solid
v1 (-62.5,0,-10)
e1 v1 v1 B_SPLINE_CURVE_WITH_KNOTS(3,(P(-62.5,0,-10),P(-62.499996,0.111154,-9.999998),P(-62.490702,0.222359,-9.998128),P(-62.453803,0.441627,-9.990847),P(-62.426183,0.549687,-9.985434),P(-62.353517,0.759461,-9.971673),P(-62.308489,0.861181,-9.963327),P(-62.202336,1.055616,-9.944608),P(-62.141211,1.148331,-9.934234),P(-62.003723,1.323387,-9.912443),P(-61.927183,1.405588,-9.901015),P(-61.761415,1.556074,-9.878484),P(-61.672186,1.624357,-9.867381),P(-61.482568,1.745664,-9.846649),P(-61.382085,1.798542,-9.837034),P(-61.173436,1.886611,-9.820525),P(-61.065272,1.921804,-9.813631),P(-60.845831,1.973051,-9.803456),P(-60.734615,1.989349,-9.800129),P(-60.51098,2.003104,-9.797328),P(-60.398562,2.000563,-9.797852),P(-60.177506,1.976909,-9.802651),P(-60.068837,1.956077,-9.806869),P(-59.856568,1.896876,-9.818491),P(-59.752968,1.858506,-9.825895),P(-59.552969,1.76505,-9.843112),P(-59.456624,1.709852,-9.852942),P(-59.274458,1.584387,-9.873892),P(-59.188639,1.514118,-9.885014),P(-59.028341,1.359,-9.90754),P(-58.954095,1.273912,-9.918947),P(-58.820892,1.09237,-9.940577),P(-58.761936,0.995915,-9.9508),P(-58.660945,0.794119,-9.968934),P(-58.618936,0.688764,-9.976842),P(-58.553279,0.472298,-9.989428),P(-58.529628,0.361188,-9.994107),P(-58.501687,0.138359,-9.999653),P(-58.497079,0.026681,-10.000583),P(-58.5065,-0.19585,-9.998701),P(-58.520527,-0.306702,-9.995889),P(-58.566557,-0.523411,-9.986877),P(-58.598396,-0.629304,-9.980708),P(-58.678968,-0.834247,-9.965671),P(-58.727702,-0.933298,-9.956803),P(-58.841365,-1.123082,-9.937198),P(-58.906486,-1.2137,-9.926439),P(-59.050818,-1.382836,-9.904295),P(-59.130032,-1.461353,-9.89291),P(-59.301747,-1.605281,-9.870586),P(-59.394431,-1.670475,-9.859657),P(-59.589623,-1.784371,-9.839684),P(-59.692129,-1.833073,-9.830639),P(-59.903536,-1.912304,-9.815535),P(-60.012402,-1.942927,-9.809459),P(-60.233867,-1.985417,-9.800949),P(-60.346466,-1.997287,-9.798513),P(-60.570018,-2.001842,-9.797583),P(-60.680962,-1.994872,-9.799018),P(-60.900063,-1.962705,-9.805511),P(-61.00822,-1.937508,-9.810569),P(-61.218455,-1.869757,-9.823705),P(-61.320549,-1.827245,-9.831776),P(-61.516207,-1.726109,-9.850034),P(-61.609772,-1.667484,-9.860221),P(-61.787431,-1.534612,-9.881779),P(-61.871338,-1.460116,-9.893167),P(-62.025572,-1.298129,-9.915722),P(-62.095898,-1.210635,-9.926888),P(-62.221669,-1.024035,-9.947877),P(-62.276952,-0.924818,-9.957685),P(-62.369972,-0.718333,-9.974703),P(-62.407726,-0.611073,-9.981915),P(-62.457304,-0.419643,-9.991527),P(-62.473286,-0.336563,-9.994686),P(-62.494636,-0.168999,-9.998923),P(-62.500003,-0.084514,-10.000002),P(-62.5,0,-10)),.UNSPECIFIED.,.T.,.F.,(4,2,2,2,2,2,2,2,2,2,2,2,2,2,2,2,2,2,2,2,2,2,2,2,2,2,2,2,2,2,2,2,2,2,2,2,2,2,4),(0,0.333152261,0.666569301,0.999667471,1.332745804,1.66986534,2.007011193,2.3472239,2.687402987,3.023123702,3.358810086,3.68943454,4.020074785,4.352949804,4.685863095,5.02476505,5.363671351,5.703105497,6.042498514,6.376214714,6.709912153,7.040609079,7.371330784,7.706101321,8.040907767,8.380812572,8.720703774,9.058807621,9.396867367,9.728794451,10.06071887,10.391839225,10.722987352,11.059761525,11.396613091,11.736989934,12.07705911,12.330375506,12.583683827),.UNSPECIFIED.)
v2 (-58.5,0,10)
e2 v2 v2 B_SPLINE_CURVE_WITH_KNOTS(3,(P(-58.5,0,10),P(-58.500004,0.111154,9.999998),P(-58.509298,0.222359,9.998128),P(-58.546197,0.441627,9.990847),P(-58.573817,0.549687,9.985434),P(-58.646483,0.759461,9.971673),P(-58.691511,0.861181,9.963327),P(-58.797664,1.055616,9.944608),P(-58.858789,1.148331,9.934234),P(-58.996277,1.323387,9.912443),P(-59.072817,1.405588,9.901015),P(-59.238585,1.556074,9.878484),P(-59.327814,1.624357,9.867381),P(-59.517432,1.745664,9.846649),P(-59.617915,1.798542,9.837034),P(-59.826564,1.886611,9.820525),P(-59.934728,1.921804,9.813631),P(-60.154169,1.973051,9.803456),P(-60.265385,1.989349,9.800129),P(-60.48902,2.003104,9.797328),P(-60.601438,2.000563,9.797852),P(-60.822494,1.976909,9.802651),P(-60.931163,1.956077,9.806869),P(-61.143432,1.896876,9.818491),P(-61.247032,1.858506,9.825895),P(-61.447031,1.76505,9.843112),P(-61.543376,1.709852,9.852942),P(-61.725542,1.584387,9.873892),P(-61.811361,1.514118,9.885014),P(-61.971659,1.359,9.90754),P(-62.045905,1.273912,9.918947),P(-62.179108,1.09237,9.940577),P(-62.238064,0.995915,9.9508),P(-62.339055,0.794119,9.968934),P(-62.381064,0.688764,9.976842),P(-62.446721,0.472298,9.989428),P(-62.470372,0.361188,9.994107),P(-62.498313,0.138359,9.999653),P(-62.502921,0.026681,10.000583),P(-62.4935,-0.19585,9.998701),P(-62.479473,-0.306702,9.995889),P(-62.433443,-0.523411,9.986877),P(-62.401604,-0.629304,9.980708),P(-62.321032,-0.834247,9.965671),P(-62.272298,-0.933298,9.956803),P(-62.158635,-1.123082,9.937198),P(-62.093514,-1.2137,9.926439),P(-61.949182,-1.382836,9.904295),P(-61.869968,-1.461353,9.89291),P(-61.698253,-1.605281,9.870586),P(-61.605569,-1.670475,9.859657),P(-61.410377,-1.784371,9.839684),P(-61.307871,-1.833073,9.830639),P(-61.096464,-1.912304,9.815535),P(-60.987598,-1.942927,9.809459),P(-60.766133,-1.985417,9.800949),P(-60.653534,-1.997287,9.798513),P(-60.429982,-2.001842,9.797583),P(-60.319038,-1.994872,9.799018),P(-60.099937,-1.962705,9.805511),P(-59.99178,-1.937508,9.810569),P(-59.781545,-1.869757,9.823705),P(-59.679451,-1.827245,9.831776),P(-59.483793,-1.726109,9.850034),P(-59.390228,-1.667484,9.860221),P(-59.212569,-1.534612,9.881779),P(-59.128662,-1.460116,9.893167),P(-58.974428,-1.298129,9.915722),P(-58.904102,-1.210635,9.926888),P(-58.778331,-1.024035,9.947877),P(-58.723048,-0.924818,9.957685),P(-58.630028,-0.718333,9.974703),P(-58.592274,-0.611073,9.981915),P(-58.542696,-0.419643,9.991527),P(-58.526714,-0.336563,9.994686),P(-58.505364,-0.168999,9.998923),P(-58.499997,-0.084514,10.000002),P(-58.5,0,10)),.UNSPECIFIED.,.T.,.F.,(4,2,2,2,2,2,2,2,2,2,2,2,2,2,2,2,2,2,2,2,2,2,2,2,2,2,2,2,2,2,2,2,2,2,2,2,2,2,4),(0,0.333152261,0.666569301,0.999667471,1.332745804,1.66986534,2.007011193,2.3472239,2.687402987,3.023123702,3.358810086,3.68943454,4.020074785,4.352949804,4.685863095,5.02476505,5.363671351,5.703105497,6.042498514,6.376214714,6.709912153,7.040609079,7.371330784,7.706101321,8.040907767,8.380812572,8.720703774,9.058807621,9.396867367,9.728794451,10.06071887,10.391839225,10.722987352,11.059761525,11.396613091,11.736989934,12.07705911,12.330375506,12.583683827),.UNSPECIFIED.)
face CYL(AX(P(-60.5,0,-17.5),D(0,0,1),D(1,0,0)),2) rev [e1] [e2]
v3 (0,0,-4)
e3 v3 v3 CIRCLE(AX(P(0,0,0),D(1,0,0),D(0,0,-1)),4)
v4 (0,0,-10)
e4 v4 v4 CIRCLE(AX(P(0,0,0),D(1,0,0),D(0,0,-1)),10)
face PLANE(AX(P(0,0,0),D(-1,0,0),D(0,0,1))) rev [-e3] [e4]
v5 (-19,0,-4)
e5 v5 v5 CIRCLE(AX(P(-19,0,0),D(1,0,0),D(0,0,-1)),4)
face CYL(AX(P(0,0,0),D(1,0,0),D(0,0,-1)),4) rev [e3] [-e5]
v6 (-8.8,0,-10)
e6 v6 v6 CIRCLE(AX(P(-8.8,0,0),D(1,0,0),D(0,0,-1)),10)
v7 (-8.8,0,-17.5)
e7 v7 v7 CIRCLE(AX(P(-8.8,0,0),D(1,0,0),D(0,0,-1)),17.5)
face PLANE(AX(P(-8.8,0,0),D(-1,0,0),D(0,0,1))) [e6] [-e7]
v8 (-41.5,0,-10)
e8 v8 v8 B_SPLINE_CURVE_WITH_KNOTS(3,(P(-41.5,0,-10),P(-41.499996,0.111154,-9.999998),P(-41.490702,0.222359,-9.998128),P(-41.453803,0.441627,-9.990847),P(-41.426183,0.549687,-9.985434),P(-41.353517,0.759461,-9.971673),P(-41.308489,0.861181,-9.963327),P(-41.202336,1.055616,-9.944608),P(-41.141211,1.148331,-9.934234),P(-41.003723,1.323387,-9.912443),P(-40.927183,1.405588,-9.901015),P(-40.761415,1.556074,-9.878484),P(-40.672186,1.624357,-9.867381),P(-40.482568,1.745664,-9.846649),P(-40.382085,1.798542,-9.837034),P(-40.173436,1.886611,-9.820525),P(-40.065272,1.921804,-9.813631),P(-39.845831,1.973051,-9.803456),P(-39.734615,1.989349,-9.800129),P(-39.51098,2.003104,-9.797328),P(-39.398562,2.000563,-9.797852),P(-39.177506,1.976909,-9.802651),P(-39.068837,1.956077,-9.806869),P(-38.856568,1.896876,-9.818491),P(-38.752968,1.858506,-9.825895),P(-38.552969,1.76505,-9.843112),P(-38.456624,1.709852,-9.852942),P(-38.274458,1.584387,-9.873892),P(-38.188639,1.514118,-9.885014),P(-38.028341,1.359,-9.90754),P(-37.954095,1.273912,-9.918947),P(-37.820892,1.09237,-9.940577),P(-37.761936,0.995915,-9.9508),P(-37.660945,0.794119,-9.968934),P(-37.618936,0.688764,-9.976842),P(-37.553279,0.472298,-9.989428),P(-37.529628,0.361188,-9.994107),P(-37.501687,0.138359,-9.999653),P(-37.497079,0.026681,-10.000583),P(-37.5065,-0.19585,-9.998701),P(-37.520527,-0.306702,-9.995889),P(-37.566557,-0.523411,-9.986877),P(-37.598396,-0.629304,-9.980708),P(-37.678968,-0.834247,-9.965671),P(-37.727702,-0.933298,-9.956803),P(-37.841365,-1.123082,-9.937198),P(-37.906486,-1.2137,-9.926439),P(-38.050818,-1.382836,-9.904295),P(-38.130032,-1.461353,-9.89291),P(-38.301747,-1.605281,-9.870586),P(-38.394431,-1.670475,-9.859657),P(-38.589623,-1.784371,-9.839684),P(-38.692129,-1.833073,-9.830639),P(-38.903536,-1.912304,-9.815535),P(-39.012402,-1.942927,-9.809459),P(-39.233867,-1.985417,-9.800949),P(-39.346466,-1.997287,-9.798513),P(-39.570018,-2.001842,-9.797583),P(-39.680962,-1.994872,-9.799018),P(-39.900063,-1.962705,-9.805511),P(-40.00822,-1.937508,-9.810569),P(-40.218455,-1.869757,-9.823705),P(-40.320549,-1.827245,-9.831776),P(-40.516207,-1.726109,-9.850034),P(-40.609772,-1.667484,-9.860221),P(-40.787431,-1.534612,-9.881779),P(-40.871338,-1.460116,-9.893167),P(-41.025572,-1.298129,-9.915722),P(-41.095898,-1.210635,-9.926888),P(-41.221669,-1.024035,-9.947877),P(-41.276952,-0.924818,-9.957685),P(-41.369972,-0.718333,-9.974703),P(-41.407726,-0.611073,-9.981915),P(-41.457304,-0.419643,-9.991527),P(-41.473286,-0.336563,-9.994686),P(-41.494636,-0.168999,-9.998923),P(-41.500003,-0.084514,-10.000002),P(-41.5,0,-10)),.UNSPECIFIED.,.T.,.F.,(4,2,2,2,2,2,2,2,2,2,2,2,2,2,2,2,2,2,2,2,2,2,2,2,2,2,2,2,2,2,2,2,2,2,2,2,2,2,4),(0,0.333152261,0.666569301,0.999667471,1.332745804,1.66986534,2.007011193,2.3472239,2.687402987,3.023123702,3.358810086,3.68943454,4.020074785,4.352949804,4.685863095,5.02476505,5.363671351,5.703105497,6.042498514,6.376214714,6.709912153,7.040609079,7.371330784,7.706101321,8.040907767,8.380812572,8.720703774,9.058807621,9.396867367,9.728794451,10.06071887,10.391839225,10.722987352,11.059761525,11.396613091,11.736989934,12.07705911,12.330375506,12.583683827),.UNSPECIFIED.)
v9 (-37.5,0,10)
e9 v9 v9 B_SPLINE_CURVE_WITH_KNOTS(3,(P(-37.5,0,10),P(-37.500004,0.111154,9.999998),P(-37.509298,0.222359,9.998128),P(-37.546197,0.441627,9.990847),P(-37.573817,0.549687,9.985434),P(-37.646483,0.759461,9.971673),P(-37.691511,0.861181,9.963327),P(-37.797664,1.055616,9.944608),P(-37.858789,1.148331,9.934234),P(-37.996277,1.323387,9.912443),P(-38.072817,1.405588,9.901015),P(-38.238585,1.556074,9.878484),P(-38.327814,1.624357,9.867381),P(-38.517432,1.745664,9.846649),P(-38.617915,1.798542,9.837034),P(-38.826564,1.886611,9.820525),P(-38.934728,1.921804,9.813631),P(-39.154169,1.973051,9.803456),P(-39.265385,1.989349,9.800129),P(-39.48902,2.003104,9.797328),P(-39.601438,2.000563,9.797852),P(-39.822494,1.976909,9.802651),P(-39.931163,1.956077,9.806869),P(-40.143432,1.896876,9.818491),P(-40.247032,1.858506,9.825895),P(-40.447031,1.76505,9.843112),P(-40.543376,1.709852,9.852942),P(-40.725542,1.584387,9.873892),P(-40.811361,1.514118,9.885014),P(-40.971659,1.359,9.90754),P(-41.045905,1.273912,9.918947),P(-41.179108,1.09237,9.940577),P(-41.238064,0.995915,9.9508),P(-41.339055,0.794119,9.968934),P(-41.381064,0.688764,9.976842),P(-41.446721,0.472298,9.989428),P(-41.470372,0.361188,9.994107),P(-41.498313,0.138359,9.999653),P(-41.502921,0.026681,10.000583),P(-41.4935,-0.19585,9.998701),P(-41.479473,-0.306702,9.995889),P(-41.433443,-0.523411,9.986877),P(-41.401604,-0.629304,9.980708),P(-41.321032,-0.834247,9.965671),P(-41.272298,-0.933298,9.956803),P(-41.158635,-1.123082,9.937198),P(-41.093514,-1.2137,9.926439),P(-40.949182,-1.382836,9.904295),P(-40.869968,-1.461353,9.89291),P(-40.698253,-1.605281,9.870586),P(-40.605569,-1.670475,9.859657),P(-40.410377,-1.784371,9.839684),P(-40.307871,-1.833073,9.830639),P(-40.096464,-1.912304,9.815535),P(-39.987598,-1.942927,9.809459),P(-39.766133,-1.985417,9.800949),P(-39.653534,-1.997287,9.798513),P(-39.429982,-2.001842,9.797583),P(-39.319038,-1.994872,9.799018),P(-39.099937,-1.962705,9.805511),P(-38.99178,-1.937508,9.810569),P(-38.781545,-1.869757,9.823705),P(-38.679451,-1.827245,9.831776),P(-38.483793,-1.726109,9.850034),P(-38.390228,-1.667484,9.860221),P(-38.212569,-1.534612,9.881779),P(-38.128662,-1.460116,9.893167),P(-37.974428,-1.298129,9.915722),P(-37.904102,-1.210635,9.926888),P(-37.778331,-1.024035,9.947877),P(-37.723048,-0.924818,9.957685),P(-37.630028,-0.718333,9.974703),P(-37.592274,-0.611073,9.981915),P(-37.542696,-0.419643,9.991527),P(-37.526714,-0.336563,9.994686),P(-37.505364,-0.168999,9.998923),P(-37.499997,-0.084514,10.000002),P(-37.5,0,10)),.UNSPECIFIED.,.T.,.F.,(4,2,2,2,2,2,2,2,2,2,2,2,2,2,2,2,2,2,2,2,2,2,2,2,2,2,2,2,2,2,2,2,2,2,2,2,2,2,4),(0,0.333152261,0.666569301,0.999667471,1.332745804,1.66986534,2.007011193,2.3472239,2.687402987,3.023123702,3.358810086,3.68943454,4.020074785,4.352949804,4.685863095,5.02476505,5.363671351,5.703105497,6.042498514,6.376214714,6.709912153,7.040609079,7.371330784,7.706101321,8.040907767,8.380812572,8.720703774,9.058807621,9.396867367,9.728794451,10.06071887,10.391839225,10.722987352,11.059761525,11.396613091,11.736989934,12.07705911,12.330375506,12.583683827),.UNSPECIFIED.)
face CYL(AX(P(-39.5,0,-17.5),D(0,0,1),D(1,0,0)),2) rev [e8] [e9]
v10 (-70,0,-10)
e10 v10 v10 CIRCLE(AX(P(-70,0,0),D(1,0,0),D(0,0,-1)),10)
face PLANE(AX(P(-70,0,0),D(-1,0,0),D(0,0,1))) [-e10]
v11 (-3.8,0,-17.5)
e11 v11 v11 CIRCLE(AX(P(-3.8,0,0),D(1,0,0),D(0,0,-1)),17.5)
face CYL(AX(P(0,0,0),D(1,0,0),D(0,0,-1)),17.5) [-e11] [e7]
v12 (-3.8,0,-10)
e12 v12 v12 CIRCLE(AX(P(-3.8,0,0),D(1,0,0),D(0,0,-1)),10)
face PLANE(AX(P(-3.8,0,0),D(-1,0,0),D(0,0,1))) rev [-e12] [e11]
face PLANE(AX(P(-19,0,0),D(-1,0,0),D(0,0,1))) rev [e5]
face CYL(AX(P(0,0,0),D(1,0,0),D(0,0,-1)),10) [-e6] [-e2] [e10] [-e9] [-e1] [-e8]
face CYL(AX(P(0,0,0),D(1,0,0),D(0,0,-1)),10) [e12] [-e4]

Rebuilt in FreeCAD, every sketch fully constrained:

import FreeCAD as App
import Part
import Sketcher
Q = App.Units.Quantity


def add_polygon(sketch, points):
    """Adds a closed chain of lines whose ends are joined by coincident constraints."""
    first, n = sketch.GeometryCount, len(points)
    for a, b in zip(points, points[1:] + points[:1]):
        sketch.addGeometry(Part.LineSegment(App.Vector(*a, 0), App.Vector(*b, 0)), False)
    for i in range(n):
        sketch.addConstraint(Sketcher.Constraint("Coincident", first + i, 2, first + (i + 1) % n, 1))

doc = App.newDocument("Part")
body = doc.addObject("PartDesign::Body", "Body")

sketch1 = body.newObject("Sketcher::SketchObject", "Sketch")
sketch1.AttachmentSupport = (doc.getObject("XZ_Plane"), [""])
sketch1.MapMode = "FlatFace"
add_polygon(sketch1, [(-3.8, -10), (-3.8, -17.5), (-8.8, -17.5), (-8.8, -10), (-70, -10), (-70, 0), (-19, 0), (-19, -4), (0, -4), (0, -10)])
sketch1.addConstraint([
    Sketcher.Constraint("Vertical", 0),
    Sketcher.Constraint("Horizontal", 1),
    Sketcher.Constraint("Vertical", 2),
    Sketcher.Constraint("Horizontal", 3),
    Sketcher.Constraint("Vertical", 4),
    Sketcher.Constraint("Horizontal", 5),
    Sketcher.Constraint("Vertical", 6),
    Sketcher.Constraint("Horizontal", 7),
    Sketcher.Constraint("Vertical", 8),
    Sketcher.Constraint("Horizontal", 9),
    Sketcher.Constraint("PointOnObject", 4, 2, -1),
    Sketcher.Constraint("PointOnObject", 7, 2, -2),
    Sketcher.Constraint("Horizontal", 3, 2, 8, 2),
    Sketcher.Constraint("DistanceX", 1, 2, 1, 1, Q("5 mm")),
    Sketcher.Constraint("DistanceX", 5, 1, 5, 2, Q("51 mm")),
    Sketcher.Constraint("DistanceX", 7, 1, 7, 2, Q("19 mm")),
    Sketcher.Constraint("DistanceY", 4, 1, 4, 2, Q("10 mm")),
    Sketcher.Constraint("DistanceY", 6, 2, 6, 1, Q("4 mm")),
    Sketcher.Constraint("DistanceX", 3, 2, 3, 1, Q("61.2 mm")),
    Sketcher.Constraint("DistanceY", 0, 2, 0, 1, Q("7.5 mm")),
])
revolution = body.newObject("PartDesign::Revolution", "Revolution")
revolution.Profile = sketch1
revolution.ReferenceAxis = (sketch1, ["H_Axis"])
revolution.Angle = 360

sketch2 = body.newObject("Sketcher::SketchObject", "Sketch001")
sketch2.AttachmentSupport = (doc.getObject("XY_Plane"), [""])
sketch2.MapMode = "FlatFace"
sketch2.addGeometry([
    Part.Circle(App.Vector(-39.5, 0, 0), App.Vector(0, 0, 1), 2),
    Part.Circle(App.Vector(-60.5, 0, 0), App.Vector(0, 0, 1), 2),
], False)
sketch2.addConstraint([
    Sketcher.Constraint("Equal", 0, 1),
    Sketcher.Constraint("PointOnObject", 0, 3, -1),
    Sketcher.Constraint("PointOnObject", 1, 3, -1),
    Sketcher.Constraint("Diameter", 0, Q("4 mm")),
    Sketcher.Constraint("DistanceX", 1, 3, 0, 3, Q("21 mm")),
    Sketcher.Constraint("DistanceX", 0, 3, -1, 1, Q("39.5 mm")),
])
pocket1 = body.newObject("PartDesign::Pocket", "Pocket")
pocket1.Profile = sketch2
pocket1.Type = "ThroughAll"
pocket1.Midplane = True

doc.recompute()
